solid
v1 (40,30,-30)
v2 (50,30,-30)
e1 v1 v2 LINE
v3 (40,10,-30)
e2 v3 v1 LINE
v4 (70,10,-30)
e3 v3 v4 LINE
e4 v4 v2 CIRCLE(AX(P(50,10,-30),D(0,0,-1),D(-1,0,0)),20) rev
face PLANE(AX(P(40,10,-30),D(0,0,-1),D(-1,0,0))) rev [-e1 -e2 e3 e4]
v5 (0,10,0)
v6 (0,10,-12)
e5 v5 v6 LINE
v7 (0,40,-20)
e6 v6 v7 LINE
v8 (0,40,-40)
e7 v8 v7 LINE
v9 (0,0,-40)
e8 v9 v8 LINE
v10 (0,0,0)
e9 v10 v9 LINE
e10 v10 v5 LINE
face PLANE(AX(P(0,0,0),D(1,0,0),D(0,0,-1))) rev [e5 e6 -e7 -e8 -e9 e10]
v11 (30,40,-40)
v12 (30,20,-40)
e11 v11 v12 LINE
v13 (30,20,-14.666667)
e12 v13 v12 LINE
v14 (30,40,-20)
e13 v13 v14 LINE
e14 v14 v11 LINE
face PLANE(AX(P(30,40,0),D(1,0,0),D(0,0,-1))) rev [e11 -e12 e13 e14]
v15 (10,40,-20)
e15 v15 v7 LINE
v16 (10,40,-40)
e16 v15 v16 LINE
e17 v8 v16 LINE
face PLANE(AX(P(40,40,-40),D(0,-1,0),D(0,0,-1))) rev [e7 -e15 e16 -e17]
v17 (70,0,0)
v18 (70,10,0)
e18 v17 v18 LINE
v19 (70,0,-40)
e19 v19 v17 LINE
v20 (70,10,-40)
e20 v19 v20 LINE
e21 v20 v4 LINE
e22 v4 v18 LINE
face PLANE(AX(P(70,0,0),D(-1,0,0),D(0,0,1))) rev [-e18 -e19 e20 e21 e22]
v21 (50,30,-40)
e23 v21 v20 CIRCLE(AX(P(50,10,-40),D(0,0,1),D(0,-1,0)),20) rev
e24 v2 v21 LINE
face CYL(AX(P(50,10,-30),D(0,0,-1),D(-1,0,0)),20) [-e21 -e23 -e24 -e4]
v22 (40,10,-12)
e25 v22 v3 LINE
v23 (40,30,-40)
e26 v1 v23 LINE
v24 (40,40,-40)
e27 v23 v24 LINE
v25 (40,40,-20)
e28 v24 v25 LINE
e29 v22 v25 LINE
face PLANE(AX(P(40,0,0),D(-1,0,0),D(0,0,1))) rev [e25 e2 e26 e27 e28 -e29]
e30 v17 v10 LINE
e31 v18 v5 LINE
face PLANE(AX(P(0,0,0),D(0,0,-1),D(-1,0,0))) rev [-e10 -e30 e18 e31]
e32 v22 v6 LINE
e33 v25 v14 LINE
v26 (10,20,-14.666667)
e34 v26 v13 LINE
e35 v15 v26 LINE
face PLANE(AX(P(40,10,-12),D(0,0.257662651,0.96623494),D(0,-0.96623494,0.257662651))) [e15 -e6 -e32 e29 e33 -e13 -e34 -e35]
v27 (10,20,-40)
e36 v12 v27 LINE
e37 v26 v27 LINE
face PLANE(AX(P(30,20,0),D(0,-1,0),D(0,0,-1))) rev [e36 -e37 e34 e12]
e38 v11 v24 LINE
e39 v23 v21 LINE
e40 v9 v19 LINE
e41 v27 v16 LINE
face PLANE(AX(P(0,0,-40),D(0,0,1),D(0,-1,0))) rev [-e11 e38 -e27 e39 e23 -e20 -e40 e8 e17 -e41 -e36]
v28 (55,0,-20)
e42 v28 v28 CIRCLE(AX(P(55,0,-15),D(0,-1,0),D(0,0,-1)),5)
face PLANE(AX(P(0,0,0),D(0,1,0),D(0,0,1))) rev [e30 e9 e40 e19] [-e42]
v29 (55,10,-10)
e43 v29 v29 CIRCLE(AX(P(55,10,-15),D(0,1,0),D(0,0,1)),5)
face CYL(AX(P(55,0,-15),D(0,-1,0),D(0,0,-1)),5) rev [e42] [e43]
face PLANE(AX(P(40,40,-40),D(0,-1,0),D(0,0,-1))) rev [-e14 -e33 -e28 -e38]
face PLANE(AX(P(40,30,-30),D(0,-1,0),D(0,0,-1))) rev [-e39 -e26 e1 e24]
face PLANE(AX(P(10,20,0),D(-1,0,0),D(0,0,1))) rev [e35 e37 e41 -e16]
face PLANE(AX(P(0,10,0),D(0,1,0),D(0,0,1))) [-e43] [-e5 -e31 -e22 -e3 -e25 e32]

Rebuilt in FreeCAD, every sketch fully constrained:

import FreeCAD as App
import Part
import Sketcher
from FreeCAD import Vector
Q = App.Units.Quantity


def edges_at(feature, points):
    """Names of the edges that pass closest to the given points."""
    edges = feature.Shape.Edges
    near = lambda p: min(range(len(edges)), key=lambda i: edges[i].distToShape(Part.Vertex(*p))[0])
    return sorted({f"Edge{near(p) + 1}" for p in points})


def add_polygon(sketch, points):
    """Adds a closed chain of lines whose ends are joined by coincident constraints."""
    first, n = sketch.GeometryCount, len(points)
    for a, b in zip(points, points[1:] + points[:1]):
        sketch.addGeometry(Part.LineSegment(App.Vector(*a, 0), App.Vector(*b, 0)), False)
    for i in range(n):
        sketch.addConstraint(Sketcher.Constraint("Coincident", first + i, 2, first + (i + 1) % n, 1))

doc = App.newDocument("Part")
body = doc.addObject("PartDesign::Body", "Body")

# Sketch on YZ plane
sketch1 = body.newObject("Sketcher::SketchObject", "Sketch")
sketch1.AttachmentSupport = (doc.getObject("YZ_Plane"), [""])
sketch1.MapMode = "FlatFace"
add_polygon(sketch1, [(10, -12), (40, -20), (10, -20)])  # lines 0-2
sketch1.addConstraint(Sketcher.Constraint("Horizontal", 1))
sketch1.addConstraint(Sketcher.Constraint("Vertical", 2))
sketch1.addConstraint(Sketcher.Constraint("DistanceX", 1, 2, 1, 1, Q("30 mm")))
sketch1.addConstraint(Sketcher.Constraint("DistanceY", 2, 1, 2, 2, Q("8 mm")))
sketch1.addConstraint(Sketcher.Constraint("DistanceX", -1, 1, 0, 2, Q("40 mm")))
sketch1.addConstraint(Sketcher.Constraint("DistanceY", 0, 2, -1, 1, Q("20 mm")))
pad1 = body.newObject("PartDesign::Pad", "Pad")
pad1.Profile = sketch1
pad1.Length = 40

# Sketch on XY plane
sketch2 = body.newObject("Sketcher::SketchObject", "Sketch001")
sketch2.AttachmentSupport = (doc.getObject("XY_Plane"), [""])
sketch2.MapMode = "FlatFace"
sketch2.AttachmentOffset = App.Placement(Vector(0, 0, -20), App.Rotation())
add_polygon(sketch2, [(40, 40), (40, 10), (0, 10), (0, 40)])  # lines 0-3
sketch2.addConstraint(Sketcher.Constraint("Vertical", 0))
sketch2.addConstraint(Sketcher.Constraint("Horizontal", 1))
sketch2.addConstraint(Sketcher.Constraint("Vertical", 2))
sketch2.addConstraint(Sketcher.Constraint("Horizontal", 3))
sketch2.addConstraint(Sketcher.Constraint("PointOnObject", 1, 2, -2))
sketch2.addConstraint(Sketcher.Constraint("DistanceX", 1, 2, 1, 1, Q("40 mm")))
sketch2.addConstraint(Sketcher.Constraint("DistanceY", 0, 2, 0, 1, Q("30 mm")))
sketch2.addConstraint(Sketcher.Constraint("DistanceY", -1, 1, 0, 2, Q("10 mm")))
pad2 = body.newObject("PartDesign::Pad", "Pad001")
pad2.Profile = sketch2
pad2.Length = 20
pad2.Reversed = True

# Sketch on YZ plane
sketch3 = body.newObject("Sketcher::SketchObject", "Sketch002")
sketch3.AttachmentSupport = (doc.getObject("YZ_Plane"), [""])
sketch3.MapMode = "FlatFace"
sketch3.AttachmentOffset = App.Placement(Vector(0, 0, 40), App.Rotation())
add_polygon(sketch3, [(10, 0), (10, -40), (40, -40), (40, -20)])  # lines 0-3
sketch3.addConstraint(Sketcher.Constraint("Vertical", 0))
sketch3.addConstraint(Sketcher.Constraint("Horizontal", 1))
sketch3.addConstraint(Sketcher.Constraint("Vertical", 2))
sketch3.addConstraint(Sketcher.Constraint("PointOnObject", 3, 2, -1))
sketch3.addConstraint(Sketcher.Constraint("DistanceX", 1, 1, 1, 2, Q("30 mm")))
sketch3.addConstraint(Sketcher.Constraint("DistanceY", 0, 2, 0, 1, Q("40 mm")))
sketch3.addConstraint(Sketcher.Constraint("DistanceY", 2, 1, 2, 2, Q("20 mm")))
sketch3.addConstraint(Sketcher.Constraint("DistanceX", -1, 1, 0, 2, Q("10 mm")))
pad3 = body.newObject("PartDesign::Pad", "Pad002")
pad3.Profile = sketch3
pad3.Length = 30

# Sketch on YZ plane
sketch4 = body.newObject("Sketcher::SketchObject", "Sketch003")
sketch4.AttachmentSupport = (doc.getObject("YZ_Plane"), [""])
sketch4.MapMode = "FlatFace"
sketch4.AttachmentOffset = App.Placement(Vector(0, 0, 70), App.Rotation())
add_polygon(sketch4, [(40, -20), (10, 0), (10, -30), (30, -30), (30, -40), (40, -40)])  # lines 0-5
sketch4.addConstraint(Sketcher.Constraint("Vertical", 1))
sketch4.addConstraint(Sketcher.Constraint("Horizontal", 2))
sketch4.addConstraint(Sketcher.Constraint("Vertical", 3))
sketch4.addConstraint(Sketcher.Constraint("Horizontal", 4))
sketch4.addConstraint(Sketcher.Constraint("Vertical", 5))
sketch4.addConstraint(Sketcher.Constraint("PointOnObject", 0, 2, -1))
sketch4.addConstraint(Sketcher.Constraint("Equal", 4, 3))
sketch4.addConstraint(Sketcher.Constraint("Equal", 2, 5))
sketch4.addConstraint(Sketcher.Constraint("DistanceX", 2, 1, 2, 2, Q("20 mm")))
sketch4.addConstraint(Sketcher.Constraint("DistanceX", 4, 1, 4, 2, Q("10 mm")))
sketch4.addConstraint(Sketcher.Constraint("DistanceY", 1, 2, 1, 1, Q("30 mm")))
sketch4.addConstraint(Sketcher.Constraint("DistanceX", -1, 1, 0, 2, Q("10 mm")))
pocket1 = body.newObject("PartDesign::Pocket", "Pocket")
pocket1.Profile = sketch4
pocket1.Length = 30

# Sketch on XZ plane
sketch5 = body.newObject("Sketcher::SketchObject", "Sketch004")
sketch5.AttachmentSupport = (doc.getObject("XZ_Plane"), [""])
sketch5.MapMode = "FlatFace"
sketch5.AttachmentOffset = App.Placement(Vector(0, 0, -10), App.Rotation())
add_polygon(sketch5, [(0, 0), (0, -40), (70, -40), (70, 0)])  # lines 0-3
sketch5.addConstraint(Sketcher.Constraint("Vertical", 0))
sketch5.addConstraint(Sketcher.Constraint("Horizontal", 1))
sketch5.addConstraint(Sketcher.Constraint("Vertical", 2))
sketch5.addConstraint(Sketcher.Constraint("Horizontal", 3))
sketch5.addConstraint(Sketcher.Constraint("Coincident", 3, 2, -1, 1))
sketch5.addConstraint(Sketcher.Constraint("DistanceX", 1, 1, 1, 2, Q("70 mm")))
sketch5.addConstraint(Sketcher.Constraint("DistanceY", 0, 2, 0, 1, Q("40 mm")))
pad4 = body.newObject("PartDesign::Pad", "Pad003")
pad4.Profile = sketch5
pad4.Length = 10

# Sketch on XY plane
sketch6 = body.newObject("Sketcher::SketchObject", "Sketch005")
sketch6.AttachmentSupport = (doc.getObject("XY_Plane"), [""])
sketch6.MapMode = "FlatFace"
sketch6.AttachmentOffset = App.Placement(Vector(0, 0, -40), App.Rotation())
add_polygon(sketch6, [(30, 40), (30, 20), (10, 20), (10, 40)])  # lines 0-3
sketch6.addConstraint(Sketcher.Constraint("Vertical", 0))
sketch6.addConstraint(Sketcher.Constraint("Horizontal", 1))
sketch6.addConstraint(Sketcher.Constraint("Vertical", 2))
sketch6.addConstraint(Sketcher.Constraint("Horizontal", 3))
sketch6.addConstraint(Sketcher.Constraint("Equal", 3, 0))
sketch6.addConstraint(Sketcher.Constraint("DistanceX", 1, 2, 1, 1, Q("20 mm")))
sketch6.addConstraint(Sketcher.Constraint("DistanceX", -1, 1, 0, 2, Q("30 mm")))
sketch6.addConstraint(Sketcher.Constraint("DistanceY", -1, 1, 0, 2, Q("20 mm")))
pocket2 = body.newObject("PartDesign::Pocket", "Pocket001")
pocket2.Profile = sketch6
pocket2.Type = "ThroughAll"
pocket2.Reversed = True

# Sketch on XZ plane
sketch7 = body.newObject("Sketcher::SketchObject", "Sketch006")
sketch7.AttachmentSupport = (doc.getObject("XZ_Plane"), [""])
sketch7.MapMode = "FlatFace"
sketch7.addGeometry(Part.Circle(Vector(55, -15, 0), Vector(0, 0, 1), 5), False)
sketch7.addConstraint(Sketcher.Constraint("Diameter", 0, Q("10 mm")))
sketch7.addConstraint(Sketcher.Constraint("DistanceX", -1, 1, 0, 3, Q("55 mm")))
sketch7.addConstraint(Sketcher.Constraint("DistanceY", 0, 3, -1, 1, Q("15 mm")))
doc.recompute()
hole = body.newObject("PartDesign::Hole", "Hole")
hole.Profile = sketch7
hole.ThreadType = "None"
hole.Diameter = 10
hole.DepthType = "Dimension"
hole.Depth = 40
hole.DrillPoint = "Flat"
doc.recompute()

fillet = body.newObject("PartDesign::Fillet", "Fillet")
fillet.Base = (hole, edges_at(hole, [(70, 30, -35)]))
fillet.Radius = 20

doc.recompute()
